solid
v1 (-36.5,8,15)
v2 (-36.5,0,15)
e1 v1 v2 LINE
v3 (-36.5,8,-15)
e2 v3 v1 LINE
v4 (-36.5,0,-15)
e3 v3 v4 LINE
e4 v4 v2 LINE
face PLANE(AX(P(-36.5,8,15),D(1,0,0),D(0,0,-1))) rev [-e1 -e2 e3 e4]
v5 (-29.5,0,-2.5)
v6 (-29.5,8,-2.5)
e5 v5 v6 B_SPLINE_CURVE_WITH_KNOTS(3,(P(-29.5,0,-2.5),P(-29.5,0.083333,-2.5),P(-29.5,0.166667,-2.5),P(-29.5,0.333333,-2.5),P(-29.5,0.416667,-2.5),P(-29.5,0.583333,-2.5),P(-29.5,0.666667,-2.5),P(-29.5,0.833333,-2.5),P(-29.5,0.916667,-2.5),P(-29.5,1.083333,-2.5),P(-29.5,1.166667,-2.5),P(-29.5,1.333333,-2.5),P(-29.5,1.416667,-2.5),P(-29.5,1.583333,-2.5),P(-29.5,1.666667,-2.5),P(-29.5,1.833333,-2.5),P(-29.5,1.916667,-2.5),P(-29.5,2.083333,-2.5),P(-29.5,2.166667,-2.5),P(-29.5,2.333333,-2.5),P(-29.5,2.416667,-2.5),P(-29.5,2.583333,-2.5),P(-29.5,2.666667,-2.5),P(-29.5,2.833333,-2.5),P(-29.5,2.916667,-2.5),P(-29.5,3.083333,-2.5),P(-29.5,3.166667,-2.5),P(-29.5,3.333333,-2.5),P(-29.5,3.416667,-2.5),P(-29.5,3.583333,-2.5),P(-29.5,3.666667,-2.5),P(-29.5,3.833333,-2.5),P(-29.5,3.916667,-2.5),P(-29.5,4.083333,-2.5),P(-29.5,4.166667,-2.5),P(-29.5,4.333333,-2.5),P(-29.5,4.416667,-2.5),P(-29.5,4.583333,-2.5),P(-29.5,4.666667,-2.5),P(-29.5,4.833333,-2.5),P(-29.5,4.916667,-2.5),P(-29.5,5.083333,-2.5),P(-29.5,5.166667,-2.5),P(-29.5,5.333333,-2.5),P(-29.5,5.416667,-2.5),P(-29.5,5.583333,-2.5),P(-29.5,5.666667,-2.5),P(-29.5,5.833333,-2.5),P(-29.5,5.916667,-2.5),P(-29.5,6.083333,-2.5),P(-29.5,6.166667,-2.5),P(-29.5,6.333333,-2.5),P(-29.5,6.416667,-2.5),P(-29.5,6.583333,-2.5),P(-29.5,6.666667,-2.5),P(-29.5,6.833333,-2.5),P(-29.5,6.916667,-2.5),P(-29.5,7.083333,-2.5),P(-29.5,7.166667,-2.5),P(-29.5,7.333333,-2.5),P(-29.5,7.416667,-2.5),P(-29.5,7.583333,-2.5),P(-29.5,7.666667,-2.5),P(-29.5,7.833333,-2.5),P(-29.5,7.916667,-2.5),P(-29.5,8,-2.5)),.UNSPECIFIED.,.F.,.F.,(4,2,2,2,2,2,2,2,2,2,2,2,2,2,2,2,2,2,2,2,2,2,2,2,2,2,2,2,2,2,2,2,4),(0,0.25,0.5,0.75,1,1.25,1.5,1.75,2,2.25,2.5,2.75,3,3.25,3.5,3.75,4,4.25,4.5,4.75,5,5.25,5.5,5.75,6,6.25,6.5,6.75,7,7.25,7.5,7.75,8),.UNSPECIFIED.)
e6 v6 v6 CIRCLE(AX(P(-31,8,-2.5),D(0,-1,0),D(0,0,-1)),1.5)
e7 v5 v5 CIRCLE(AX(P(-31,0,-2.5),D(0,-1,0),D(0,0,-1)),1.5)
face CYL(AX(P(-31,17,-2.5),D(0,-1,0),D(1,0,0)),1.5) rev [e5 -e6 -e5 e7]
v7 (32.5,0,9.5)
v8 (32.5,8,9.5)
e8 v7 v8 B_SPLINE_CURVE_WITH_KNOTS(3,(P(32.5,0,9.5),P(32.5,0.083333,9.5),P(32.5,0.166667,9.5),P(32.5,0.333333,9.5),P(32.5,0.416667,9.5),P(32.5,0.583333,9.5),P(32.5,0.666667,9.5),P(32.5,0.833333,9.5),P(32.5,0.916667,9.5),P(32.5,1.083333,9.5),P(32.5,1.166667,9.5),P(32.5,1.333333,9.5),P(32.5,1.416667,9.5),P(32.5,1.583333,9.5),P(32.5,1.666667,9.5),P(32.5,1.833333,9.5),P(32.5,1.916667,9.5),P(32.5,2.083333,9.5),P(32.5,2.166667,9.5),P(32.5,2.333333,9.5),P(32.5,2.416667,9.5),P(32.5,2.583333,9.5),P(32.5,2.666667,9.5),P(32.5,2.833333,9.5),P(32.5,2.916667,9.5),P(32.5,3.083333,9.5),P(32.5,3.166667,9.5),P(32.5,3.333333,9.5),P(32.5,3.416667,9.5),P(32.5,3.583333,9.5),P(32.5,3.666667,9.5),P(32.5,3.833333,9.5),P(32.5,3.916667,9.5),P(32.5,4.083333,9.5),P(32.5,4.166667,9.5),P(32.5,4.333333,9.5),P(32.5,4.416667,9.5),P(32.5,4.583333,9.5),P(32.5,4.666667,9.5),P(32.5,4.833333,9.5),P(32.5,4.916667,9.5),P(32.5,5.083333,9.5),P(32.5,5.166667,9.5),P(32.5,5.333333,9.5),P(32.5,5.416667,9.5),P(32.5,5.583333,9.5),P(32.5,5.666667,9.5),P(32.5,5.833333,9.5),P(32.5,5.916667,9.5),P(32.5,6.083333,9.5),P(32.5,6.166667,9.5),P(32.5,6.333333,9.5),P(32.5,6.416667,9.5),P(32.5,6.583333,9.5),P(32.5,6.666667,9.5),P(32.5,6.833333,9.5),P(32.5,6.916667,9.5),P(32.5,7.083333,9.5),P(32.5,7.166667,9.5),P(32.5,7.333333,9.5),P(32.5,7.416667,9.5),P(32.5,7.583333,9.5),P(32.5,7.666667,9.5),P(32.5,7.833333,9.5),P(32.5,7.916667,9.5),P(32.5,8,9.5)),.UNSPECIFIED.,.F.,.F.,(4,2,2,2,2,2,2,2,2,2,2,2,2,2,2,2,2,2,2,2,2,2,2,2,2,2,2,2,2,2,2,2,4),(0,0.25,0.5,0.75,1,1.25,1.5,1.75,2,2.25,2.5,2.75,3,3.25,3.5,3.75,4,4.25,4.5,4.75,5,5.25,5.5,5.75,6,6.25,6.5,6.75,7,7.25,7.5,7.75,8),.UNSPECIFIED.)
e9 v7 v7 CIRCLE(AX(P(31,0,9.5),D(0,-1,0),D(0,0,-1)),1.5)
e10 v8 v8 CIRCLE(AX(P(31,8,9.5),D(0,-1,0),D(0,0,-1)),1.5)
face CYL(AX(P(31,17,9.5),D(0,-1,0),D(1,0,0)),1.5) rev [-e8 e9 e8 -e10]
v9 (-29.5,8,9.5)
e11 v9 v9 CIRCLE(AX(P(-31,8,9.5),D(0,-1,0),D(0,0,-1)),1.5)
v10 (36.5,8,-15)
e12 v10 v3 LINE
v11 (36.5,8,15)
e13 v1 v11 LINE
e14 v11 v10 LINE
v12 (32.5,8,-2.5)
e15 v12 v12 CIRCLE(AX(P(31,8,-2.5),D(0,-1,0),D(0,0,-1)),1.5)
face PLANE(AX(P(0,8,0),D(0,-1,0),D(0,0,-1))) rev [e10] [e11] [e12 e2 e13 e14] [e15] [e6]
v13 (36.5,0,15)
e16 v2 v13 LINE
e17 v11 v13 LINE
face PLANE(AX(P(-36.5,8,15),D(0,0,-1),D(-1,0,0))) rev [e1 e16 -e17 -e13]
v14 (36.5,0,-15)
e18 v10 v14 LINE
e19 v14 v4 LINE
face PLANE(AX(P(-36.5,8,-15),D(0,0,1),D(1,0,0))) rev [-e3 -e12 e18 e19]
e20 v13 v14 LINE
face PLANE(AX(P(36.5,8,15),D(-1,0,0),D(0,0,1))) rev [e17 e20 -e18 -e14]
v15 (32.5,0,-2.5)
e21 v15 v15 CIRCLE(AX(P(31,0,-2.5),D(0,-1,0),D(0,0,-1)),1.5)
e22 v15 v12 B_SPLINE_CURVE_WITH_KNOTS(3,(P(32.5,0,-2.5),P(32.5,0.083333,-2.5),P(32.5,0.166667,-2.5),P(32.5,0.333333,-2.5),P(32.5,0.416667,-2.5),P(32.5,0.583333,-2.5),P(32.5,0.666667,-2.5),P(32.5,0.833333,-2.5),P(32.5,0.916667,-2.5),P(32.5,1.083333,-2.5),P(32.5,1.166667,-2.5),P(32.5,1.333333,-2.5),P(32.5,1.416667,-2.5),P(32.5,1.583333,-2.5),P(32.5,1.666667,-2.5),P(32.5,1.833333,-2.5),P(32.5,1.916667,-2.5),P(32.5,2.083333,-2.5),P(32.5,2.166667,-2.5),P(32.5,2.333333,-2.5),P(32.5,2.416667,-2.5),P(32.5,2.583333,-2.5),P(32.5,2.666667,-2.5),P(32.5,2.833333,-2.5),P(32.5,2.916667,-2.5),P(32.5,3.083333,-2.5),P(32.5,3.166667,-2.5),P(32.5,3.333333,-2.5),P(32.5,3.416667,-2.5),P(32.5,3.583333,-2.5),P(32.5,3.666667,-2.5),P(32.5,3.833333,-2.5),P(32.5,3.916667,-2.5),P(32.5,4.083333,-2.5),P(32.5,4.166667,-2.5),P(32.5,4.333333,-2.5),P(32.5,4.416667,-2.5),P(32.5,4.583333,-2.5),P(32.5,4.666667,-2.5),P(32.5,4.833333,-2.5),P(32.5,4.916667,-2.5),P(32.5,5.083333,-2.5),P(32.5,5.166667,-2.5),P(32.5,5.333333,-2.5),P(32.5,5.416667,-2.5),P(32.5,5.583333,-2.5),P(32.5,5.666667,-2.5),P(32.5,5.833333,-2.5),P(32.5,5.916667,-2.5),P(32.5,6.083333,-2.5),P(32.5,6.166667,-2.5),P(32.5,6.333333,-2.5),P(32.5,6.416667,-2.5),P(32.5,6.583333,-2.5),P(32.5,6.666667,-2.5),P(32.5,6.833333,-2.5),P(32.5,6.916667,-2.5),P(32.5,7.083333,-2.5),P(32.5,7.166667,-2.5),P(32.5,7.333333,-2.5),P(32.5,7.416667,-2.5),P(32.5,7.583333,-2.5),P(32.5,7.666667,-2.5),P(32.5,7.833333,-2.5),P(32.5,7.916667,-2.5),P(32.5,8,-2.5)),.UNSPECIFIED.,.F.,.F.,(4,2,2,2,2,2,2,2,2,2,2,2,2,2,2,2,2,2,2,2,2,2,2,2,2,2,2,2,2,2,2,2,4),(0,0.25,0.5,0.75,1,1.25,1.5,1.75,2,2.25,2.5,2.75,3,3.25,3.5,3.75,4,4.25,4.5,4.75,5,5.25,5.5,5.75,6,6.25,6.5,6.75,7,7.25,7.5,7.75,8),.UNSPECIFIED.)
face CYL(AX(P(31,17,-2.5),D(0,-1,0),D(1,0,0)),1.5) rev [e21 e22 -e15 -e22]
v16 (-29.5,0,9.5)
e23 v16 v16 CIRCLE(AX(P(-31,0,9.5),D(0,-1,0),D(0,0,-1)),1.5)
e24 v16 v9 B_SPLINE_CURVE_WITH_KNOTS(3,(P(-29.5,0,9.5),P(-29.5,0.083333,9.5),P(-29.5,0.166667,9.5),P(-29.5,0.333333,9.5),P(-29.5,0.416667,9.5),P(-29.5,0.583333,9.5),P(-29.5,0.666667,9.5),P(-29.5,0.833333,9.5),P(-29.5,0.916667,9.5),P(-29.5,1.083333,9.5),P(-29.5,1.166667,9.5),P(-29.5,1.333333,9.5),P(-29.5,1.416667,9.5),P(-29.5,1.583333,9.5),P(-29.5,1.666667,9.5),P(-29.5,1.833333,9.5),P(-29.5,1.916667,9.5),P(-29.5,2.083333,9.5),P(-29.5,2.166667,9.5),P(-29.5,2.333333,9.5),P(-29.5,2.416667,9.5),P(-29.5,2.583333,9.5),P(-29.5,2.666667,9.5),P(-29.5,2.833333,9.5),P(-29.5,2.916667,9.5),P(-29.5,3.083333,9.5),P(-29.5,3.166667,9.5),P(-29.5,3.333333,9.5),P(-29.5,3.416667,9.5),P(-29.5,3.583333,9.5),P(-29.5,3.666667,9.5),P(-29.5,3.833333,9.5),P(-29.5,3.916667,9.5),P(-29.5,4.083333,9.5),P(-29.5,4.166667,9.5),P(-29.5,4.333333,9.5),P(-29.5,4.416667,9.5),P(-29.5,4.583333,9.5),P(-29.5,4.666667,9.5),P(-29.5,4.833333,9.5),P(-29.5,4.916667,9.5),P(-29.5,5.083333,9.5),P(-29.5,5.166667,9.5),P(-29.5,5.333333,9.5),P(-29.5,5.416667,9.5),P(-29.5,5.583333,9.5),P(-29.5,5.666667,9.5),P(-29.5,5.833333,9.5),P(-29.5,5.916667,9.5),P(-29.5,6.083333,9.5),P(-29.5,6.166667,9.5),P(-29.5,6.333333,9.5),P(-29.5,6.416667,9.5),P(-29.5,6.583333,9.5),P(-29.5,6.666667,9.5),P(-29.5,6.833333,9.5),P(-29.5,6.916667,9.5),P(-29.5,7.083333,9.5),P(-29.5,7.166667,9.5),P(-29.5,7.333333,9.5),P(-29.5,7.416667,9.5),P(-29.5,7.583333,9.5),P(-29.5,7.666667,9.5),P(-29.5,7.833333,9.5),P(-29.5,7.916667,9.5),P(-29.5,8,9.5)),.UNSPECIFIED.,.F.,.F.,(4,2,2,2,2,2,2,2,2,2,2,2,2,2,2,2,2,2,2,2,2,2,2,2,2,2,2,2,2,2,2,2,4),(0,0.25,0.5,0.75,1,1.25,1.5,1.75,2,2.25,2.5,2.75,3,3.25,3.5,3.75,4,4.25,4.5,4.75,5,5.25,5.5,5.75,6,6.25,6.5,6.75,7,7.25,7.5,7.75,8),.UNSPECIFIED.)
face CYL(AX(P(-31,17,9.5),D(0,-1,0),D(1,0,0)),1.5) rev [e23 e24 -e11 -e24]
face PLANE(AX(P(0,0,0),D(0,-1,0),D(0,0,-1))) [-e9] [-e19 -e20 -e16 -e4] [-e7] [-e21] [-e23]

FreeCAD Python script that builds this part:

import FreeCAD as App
import Part
import Sketcher
from FreeCAD import Vector
Q = App.Units.Quantity

doc = App.newDocument("Part")
params = doc.addObject("Spreadsheet::Sheet", "Params")
for row, (alias, value) in enumerate([
    ("sketch1_width", "73 mm"),
    ("sketch1_height", "30 mm"),
    ("pad1_length", "8 mm"),
    ("sketch2_diameter", "3 mm"),
    ("pocket1_length", "90 mm"),
], start=1):
    params.set(f"A{row}", alias)
    params.set(f"B{row}", "=" + value)
    params.setAlias(f"B{row}", alias)

body = doc.addObject("PartDesign::Body", "Body")

# Sketch on XZ plane
sketch1 = doc.addObject("Sketcher::SketchObject", "Sketch")
body.addObject(sketch1)
sketch1.AttachmentSupport = (doc.XZ_Plane, [""])
sketch1.MapMode = "FlatFace"
sketch1.addGeometry([
    Part.LineSegment(Vector(-36.5, -15, 0), Vector(-36.5, 15, 0)),
    Part.LineSegment(Vector(-36.5, 15, 0), Vector(36.5, 15, 0)),
    Part.LineSegment(Vector(36.5, 15, 0), Vector(36.5, -15, 0)),
    Part.LineSegment(Vector(36.5, -15, 0), Vector(-36.5, -15, 0)),
], False)
sketch1.addConstraint([
    Sketcher.Constraint("Coincident", 0, 2, 1, 1),
    Sketcher.Constraint("Coincident", 1, 2, 2, 1),
    Sketcher.Constraint("Coincident", 2, 2, 3, 1),
    Sketcher.Constraint("Coincident", 3, 2, 0, 1),
    Sketcher.Constraint("Vertical", 0),
    Sketcher.Constraint("Horizontal", 1),
    Sketcher.Constraint("Vertical", 2),
    Sketcher.Constraint("Horizontal", 3),
    Sketcher.Constraint("Symmetric", 0, 2, 2, 2, -1, 1),
    Sketcher.Constraint("DistanceX", 1, 1, 1, 2, Q("73 mm")),
    Sketcher.Constraint("DistanceY", 0, 1, 0, 2, Q("30 mm")),
])
sketch1.setExpression("Constraints[9]", "Params.sketch1_width")
sketch1.setExpression("Constraints[10]", "Params.sketch1_height")
pad1 = doc.addObject("PartDesign::Pad", "Pad")
body.addObject(pad1)
pad1.Profile = sketch1
pad1.setExpression("Length", "Params.pad1_length")
pad1.Reversed = True

# Sketch on XZ plane
sketch2 = doc.addObject("Sketcher::SketchObject", "Sketch001")
body.addObject(sketch2)
sketch2.AttachmentSupport = (doc.XZ_Plane, [""])
sketch2.MapMode = "FlatFace"
sketch2.AttachmentOffset = App.Placement(Vector(0, 0, 28), App.Rotation())
sketch2.addGeometry([
    Part.Circle(Vector(31, -2.5, 0), Vector(0, 0, 1), 1.5),
    Part.Circle(Vector(-31, -2.5, 0), Vector(0, 0, 1), 1.5),
    Part.Circle(Vector(-31, 9.5, 0), Vector(0, 0, 1), 1.5),
    Part.Circle(Vector(31, 9.5, 0), Vector(0, 0, 1), 1.5),
], False)
sketch2.addConstraint([
    Sketcher.Constraint("Equal", 0, 1),
    Sketcher.Constraint("Equal", 1, 2),
    Sketcher.Constraint("Equal", 2, 3),
    Sketcher.Constraint("Symmetric", 0, 3, 1, 3, -2),
    Sketcher.Constraint("Symmetric", 2, 3, 3, 3, -2),
    Sketcher.Constraint("Vertical", 1, 3, 2, 3),
    Sketcher.Constraint("Diameter", 0, Q("3 mm")),
    Sketcher.Constraint("DistanceX", -1, 1, 0, 3, Q("31 mm")),
    Sketcher.Constraint("DistanceY", 1, 3, 2, 3, Q("12 mm")),
    Sketcher.Constraint("DistanceY", 0, 3, -1, 1, Q("2.5 mm")),
])
sketch2.setExpression("Constraints[6]", "Params.sketch2_diameter")
pocket1 = doc.addObject("PartDesign::Pocket", "Pocket")
body.addObject(pocket1)
pocket1.Profile = sketch2
pocket1.setExpression("Length", "Params.pocket1_length")
pocket1.Midplane = True

doc.recompute()
